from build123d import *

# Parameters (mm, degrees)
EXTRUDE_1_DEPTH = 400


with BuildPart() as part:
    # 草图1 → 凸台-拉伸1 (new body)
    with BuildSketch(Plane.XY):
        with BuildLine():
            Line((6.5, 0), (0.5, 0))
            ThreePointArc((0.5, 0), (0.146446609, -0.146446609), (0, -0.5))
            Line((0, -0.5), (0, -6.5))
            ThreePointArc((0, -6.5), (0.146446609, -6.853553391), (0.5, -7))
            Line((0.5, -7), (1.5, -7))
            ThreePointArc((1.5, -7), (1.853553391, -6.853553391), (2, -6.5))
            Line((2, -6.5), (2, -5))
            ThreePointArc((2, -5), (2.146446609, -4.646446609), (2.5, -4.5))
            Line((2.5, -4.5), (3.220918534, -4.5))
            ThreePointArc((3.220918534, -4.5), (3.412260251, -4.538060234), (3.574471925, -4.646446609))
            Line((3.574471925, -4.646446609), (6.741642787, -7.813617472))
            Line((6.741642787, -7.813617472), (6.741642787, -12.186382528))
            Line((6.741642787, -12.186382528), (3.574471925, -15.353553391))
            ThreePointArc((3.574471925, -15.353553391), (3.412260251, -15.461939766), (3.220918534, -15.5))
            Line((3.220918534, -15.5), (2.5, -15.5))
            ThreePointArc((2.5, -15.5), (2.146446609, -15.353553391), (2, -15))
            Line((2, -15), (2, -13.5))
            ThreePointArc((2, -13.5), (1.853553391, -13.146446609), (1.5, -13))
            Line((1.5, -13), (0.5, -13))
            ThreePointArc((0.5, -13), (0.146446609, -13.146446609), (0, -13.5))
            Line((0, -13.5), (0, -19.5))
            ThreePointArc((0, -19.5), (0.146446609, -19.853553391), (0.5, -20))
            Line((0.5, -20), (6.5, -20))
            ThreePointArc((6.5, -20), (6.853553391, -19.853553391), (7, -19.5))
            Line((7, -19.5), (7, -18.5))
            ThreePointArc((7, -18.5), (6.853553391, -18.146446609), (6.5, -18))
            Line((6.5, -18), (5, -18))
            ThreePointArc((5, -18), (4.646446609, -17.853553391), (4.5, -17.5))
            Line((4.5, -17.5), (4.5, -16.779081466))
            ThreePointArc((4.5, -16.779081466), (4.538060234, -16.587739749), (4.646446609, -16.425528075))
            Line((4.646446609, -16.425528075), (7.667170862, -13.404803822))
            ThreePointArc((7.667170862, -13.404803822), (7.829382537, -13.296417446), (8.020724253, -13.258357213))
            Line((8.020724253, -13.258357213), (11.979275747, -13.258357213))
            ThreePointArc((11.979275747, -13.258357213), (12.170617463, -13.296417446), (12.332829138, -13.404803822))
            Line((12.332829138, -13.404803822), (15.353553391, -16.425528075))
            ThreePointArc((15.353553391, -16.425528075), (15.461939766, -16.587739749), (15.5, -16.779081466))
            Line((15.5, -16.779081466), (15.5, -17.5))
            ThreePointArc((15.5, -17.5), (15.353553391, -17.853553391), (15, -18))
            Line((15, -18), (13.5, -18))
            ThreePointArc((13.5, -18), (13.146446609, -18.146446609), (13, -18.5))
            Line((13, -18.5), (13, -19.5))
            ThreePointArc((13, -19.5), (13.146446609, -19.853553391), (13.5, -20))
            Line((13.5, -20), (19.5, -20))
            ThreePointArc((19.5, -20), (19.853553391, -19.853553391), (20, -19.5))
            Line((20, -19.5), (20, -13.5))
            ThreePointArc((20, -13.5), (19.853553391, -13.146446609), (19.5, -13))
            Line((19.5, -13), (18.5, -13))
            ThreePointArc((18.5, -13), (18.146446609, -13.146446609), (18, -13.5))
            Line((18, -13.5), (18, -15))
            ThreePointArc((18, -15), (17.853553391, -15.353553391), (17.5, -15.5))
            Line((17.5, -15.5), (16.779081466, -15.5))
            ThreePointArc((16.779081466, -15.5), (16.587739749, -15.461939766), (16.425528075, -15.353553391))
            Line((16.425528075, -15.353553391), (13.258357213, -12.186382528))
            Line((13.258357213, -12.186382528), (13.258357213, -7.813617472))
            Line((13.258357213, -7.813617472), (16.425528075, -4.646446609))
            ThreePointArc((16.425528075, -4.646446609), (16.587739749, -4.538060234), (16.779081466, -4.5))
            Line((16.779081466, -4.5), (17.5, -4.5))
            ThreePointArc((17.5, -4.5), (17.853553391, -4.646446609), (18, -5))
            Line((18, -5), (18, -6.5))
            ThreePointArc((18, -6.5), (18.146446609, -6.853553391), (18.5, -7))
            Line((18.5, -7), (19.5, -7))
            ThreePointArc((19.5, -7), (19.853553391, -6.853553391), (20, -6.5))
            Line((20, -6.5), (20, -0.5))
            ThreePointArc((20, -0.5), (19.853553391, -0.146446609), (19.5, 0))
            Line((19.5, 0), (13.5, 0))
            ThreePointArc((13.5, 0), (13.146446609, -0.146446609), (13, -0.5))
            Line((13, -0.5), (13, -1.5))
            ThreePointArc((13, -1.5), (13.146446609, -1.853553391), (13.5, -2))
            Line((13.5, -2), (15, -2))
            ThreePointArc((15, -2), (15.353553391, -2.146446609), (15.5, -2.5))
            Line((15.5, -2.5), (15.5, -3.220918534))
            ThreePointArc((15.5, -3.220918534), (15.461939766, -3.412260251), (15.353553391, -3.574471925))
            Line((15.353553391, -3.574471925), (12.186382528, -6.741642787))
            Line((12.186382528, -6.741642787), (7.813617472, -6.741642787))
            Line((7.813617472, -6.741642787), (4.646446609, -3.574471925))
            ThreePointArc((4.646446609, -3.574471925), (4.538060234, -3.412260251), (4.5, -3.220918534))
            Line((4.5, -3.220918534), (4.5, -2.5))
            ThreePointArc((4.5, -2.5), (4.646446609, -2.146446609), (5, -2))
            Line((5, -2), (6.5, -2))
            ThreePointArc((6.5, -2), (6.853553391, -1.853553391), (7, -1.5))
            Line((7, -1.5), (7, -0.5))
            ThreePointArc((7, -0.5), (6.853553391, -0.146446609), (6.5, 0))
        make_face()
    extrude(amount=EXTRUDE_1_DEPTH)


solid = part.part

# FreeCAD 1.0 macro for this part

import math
import FreeCAD as App
import Part
import Sketcher

V = App.Vector
Q = App.Units.Quantity

doc = App.newDocument("Part")
params = doc.addObject("Spreadsheet::Sheet", "Params")
for row, (alias, value) in enumerate([
    ("sketch1_radius", "0.5 mm"),
    ("sketch1_width", "6 mm"),
    ("sketch1_width2", "1 mm"),
    ("sketch1_width3", "1.5 mm"),
    ("pad1_length", "400 mm"),
], start=1):
    params.set(f"A{row}", alias)
    params.set(f"B{row}", "=" + value)
    params.setAlias(f"B{row}", alias)

body = doc.addObject("PartDesign::Body", "Body")

sketch1 = body.newObject("Sketcher::SketchObject", "Sketch")
sketch1.AttachmentSupport = (doc.getObject("XY_Plane"), [""])
sketch1.MapMode = "FlatFace"
sketch1.addGeometry([
    Part.LineSegment(V(6.5, 0, 0), V(0.5, 0, 0)),
    Part.ArcOfCircle(Part.Circle(V(0.5, -0.5, 0), V(0, 0, 1), 0.5), math.radians(90), math.radians(180)),
    Part.LineSegment(V(0, -0.5, 0), V(0, -6.5, 0)),
    Part.ArcOfCircle(Part.Circle(V(0.5, -6.5, 0), V(0, 0, 1), 0.5), math.radians(180), math.radians(270)),
    Part.LineSegment(V(0.5, -7, 0), V(1.5, -7, 0)),
    Part.ArcOfCircle(Part.Circle(V(1.5, -6.5, 0), V(0, 0, 1), 0.5), math.radians(-90), math.radians(0)),
    Part.LineSegment(V(2, -6.5, 0), V(2, -5, 0)),
    Part.ArcOfCircle(Part.Circle(V(2.5, -5, 0), V(0, 0, 1), 0.5), math.radians(90), math.radians(180)),
    Part.LineSegment(V(2.5, -4.5, 0), V(3.22, -4.5, 0)),
    Part.ArcOfCircle(Part.Circle(V(3.22, -5, 0), V(0, 0, 1), 0.5), math.radians(45), math.radians(90)),
    Part.LineSegment(V(3.57, -4.65, 0), V(6.74, -7.81, 0)),
    Part.LineSegment(V(6.74, -7.81, 0), V(6.74, -12.19, 0)),
    Part.LineSegment(V(6.74, -12.19, 0), V(3.57, -15.35, 0)),
    Part.ArcOfCircle(Part.Circle(V(3.22, -15, 0), V(0, 0, 1), 0.5), math.radians(-90), math.radians(-45)),
    Part.LineSegment(V(3.22, -15.5, 0), V(2.5, -15.5, 0)),
    Part.ArcOfCircle(Part.Circle(V(2.5, -15, 0), V(0, 0, 1), 0.5), math.radians(180), math.radians(270)),
    Part.LineSegment(V(2, -15, 0), V(2, -13.5, 0)),
    Part.ArcOfCircle(Part.Circle(V(1.5, -13.5, 0), V(0, 0, 1), 0.5), math.radians(0), math.radians(90)),
    Part.LineSegment(V(1.5, -13, 0), V(0.5, -13, 0)),
    Part.ArcOfCircle(Part.Circle(V(0.5, -13.5, 0), V(0, 0, 1), 0.5), math.radians(90), math.radians(180)),
    Part.LineSegment(V(0, -13.5, 0), V(0, -19.5, 0)),
    Part.ArcOfCircle(Part.Circle(V(0.5, -19.5, 0), V(0, 0, 1), 0.5), math.radians(180), math.radians(270)),
    Part.LineSegment(V(0.5, -20, 0), V(6.5, -20, 0)),
    Part.ArcOfCircle(Part.Circle(V(6.5, -19.5, 0), V(0, 0, 1), 0.5), math.radians(-90), math.radians(0)),
    Part.LineSegment(V(7, -19.5, 0), V(7, -18.5, 0)),
    Part.ArcOfCircle(Part.Circle(V(6.5, -18.5, 0), V(0, 0, 1), 0.5), math.radians(0), math.radians(90)),
    Part.LineSegment(V(6.5, -18, 0), V(5, -18, 0)),
    Part.ArcOfCircle(Part.Circle(V(5, -17.5, 0), V(0, 0, 1), 0.5), math.radians(180), math.radians(270)),
    Part.LineSegment(V(4.5, -17.5, 0), V(4.5, -16.78, 0)),
    Part.ArcOfCircle(Part.Circle(V(5, -16.78, 0), V(0, 0, 1), 0.5), math.radians(135), math.radians(180)),
    Part.LineSegment(V(4.65, -16.43, 0), V(7.67, -13.4, 0)),
    Part.ArcOfCircle(Part.Circle(V(8.02, -13.76, 0), V(0, 0, 1), 0.5), math.radians(90), math.radians(135)),
    Part.LineSegment(V(8.02, -13.26, 0), V(11.98, -13.26, 0)),
    Part.ArcOfCircle(Part.Circle(V(11.98, -13.76, 0), V(0, 0, 1), 0.5), math.radians(45), math.radians(90)),
    Part.LineSegment(V(12.33, -13.4, 0), V(15.35, -16.43, 0)),
    Part.ArcOfCircle(Part.Circle(V(15, -16.78, 0), V(0, 0, 1), 0.5), math.radians(0), math.radians(45)),
    Part.LineSegment(V(15.5, -16.78, 0), V(15.5, -17.5, 0)),
    Part.ArcOfCircle(Part.Circle(V(15, -17.5, 0), V(0, 0, 1), 0.5), math.radians(-90), math.radians(0)),
    Part.LineSegment(V(15, -18, 0), V(13.5, -18, 0)),
    Part.ArcOfCircle(Part.Circle(V(13.5, -18.5, 0), V(0, 0, 1), 0.5), math.radians(90), math.radians(180)),
    Part.LineSegment(V(13, -18.5, 0), V(13, -19.5, 0)),
    Part.ArcOfCircle(Part.Circle(V(13.5, -19.5, 0), V(0, 0, 1), 0.5), math.radians(180), math.radians(270)),
    Part.LineSegment(V(13.5, -20, 0), V(19.5, -20, 0)),
    Part.ArcOfCircle(Part.Circle(V(19.5, -19.5, 0), V(0, 0, 1), 0.5), math.radians(-90), math.radians(0)),
    Part.LineSegment(V(20, -19.5, 0), V(20, -13.5, 0)),
    Part.ArcOfCircle(Part.Circle(V(19.5, -13.5, 0), V(0, 0, 1), 0.5), math.radians(0), math.radians(90)),
    Part.LineSegment(V(19.5, -13, 0), V(18.5, -13, 0)),
    Part.ArcOfCircle(Part.Circle(V(18.5, -13.5, 0), V(0, 0, 1), 0.5), math.radians(90), math.radians(180)),
    Part.LineSegment(V(18, -13.5, 0), V(18, -15, 0)),
    Part.ArcOfCircle(Part.Circle(V(17.5, -15, 0), V(0, 0, 1), 0.5), math.radians(-90), math.radians(0)),
    Part.LineSegment(V(17.5, -15.5, 0), V(16.78, -15.5, 0)),
    Part.ArcOfCircle(Part.Circle(V(16.78, -15, 0), V(0, 0, 1), 0.5), math.radians(-135), math.radians(-90)),
    Part.LineSegment(V(16.43, -15.35, 0), V(13.26, -12.19, 0)),
    Part.LineSegment(V(13.26, -12.19, 0), V(13.26, -7.81, 0)),
    Part.LineSegment(V(13.26, -7.81, 0), V(16.43, -4.65, 0)),
    Part.ArcOfCircle(Part.Circle(V(16.78, -5, 0), V(0, 0, 1), 0.5), math.radians(90), math.radians(135)),
    Part.LineSegment(V(16.78, -4.5, 0), V(17.5, -4.5, 0)),
    Part.ArcOfCircle(Part.Circle(V(17.5, -5, 0), V(0, 0, 1), 0.5), math.radians(0), math.radians(90)),
    Part.LineSegment(V(18, -5, 0), V(18, -6.5, 0)),
    Part.ArcOfCircle(Part.Circle(V(18.5, -6.5, 0), V(0, 0, 1), 0.5), math.radians(180), math.radians(270)),
    Part.LineSegment(V(18.5, -7, 0), V(19.5, -7, 0)),
    Part.ArcOfCircle(Part.Circle(V(19.5, -6.5, 0), V(0, 0, 1), 0.5), math.radians(-90), math.radians(0)),
    Part.LineSegment(V(20, -6.5, 0), V(20, -0.5, 0)),
    Part.ArcOfCircle(Part.Circle(V(19.5, -0.5, 0), V(0, 0, 1), 0.5), math.radians(0), math.radians(90)),
    Part.LineSegment(V(19.5, 0, 0), V(13.5, 0, 0)),
    Part.ArcOfCircle(Part.Circle(V(13.5, -0.5, 0), V(0, 0, 1), 0.5), math.radians(90), math.radians(180)),
    Part.LineSegment(V(13, -0.5, 0), V(13, -1.5, 0)),
    Part.ArcOfCircle(Part.Circle(V(13.5, -1.5, 0), V(0, 0, 1), 0.5), math.radians(180), math.radians(270)),
    Part.LineSegment(V(13.5, -2, 0), V(15, -2, 0)),
    Part.ArcOfCircle(Part.Circle(V(15, -2.5, 0), V(0, 0, 1), 0.5), math.radians(0), math.radians(90)),
    Part.LineSegment(V(15.5, -2.5, 0), V(15.5, -3.22, 0)),
    Part.ArcOfCircle(Part.Circle(V(15, -3.22, 0), V(0, 0, 1), 0.5), math.radians(-45), math.radians(0)),
    Part.LineSegment(V(15.35, -3.57, 0), V(12.19, -6.74, 0)),
    Part.LineSegment(V(12.19, -6.74, 0), V(7.81, -6.74, 0)),
    Part.LineSegment(V(7.81, -6.74, 0), V(4.65, -3.57, 0)),
    Part.ArcOfCircle(Part.Circle(V(5, -3.22, 0), V(0, 0, 1), 0.5), math.radians(180), math.radians(225)),
    Part.LineSegment(V(4.5, -3.22, 0), V(4.5, -2.5, 0)),
    Part.ArcOfCircle(Part.Circle(V(5, -2.5, 0), V(0, 0, 1), 0.5), math.radians(90), math.radians(180)),
    Part.LineSegment(V(5, -2, 0), V(6.5, -2, 0)),
    Part.ArcOfCircle(Part.Circle(V(6.5, -1.5, 0), V(0, 0, 1), 0.5), math.radians(-90), math.radians(0)),
    Part.LineSegment(V(7, -1.5, 0), V(7, -0.5, 0)),
    Part.ArcOfCircle(Part.Circle(V(6.5, -0.5, 0), V(0, 0, 1), 0.5), math.radians(0), math.radians(90)),
], False)
sketch1.addConstraint([
    Sketcher.Constraint("Tangent", 0, 2, 1, 1),
    Sketcher.Constraint("Tangent", 1, 2, 2, 1),
    Sketcher.Constraint("Tangent", 2, 2, 3, 1),
    Sketcher.Constraint("Tangent", 3, 2, 4, 1),
    Sketcher.Constraint("Tangent", 4, 2, 5, 1),
    Sketcher.Constraint("Tangent", 5, 2, 6, 1),
    Sketcher.Constraint("Tangent", 6, 2, 7, 2),
    Sketcher.Constraint("Tangent", 7, 1, 8, 1),
    Sketcher.Constraint("Tangent", 8, 2, 9, 2),
    Sketcher.Constraint("Tangent", 9, 1, 10, 1),
    Sketcher.Constraint("Coincident", 10, 2, 11, 1),
    Sketcher.Constraint("Coincident", 11, 2, 12, 1),
    Sketcher.Constraint("Tangent", 12, 2, 13, 2),
    Sketcher.Constraint("Tangent", 13, 1, 14, 1),
    Sketcher.Constraint("Tangent", 14, 2, 15, 2),
    Sketcher.Constraint("Tangent", 15, 1, 16, 1),
    Sketcher.Constraint("Tangent", 16, 2, 17, 1),
    Sketcher.Constraint("Tangent", 17, 2, 18, 1),
    Sketcher.Constraint("Tangent", 18, 2, 19, 1),
    Sketcher.Constraint("Tangent", 19, 2, 20, 1),
    Sketcher.Constraint("Tangent", 20, 2, 21, 1),
    Sketcher.Constraint("Tangent", 21, 2, 22, 1),
    Sketcher.Constraint("Tangent", 22, 2, 23, 1),
    Sketcher.Constraint("Tangent", 23, 2, 24, 1),
    Sketcher.Constraint("Tangent", 24, 2, 25, 1),
    Sketcher.Constraint("Tangent", 25, 2, 26, 1),
    Sketcher.Constraint("Tangent", 26, 2, 27, 2),
    Sketcher.Constraint("Tangent", 27, 1, 28, 1),
    Sketcher.Constraint("Tangent", 28, 2, 29, 2),
    Sketcher.Constraint("Tangent", 29, 1, 30, 1),
    Sketcher.Constraint("Tangent", 30, 2, 31, 2),
    Sketcher.Constraint("Tangent", 31, 1, 32, 1),
    Sketcher.Constraint("Tangent", 32, 2, 33, 2),
    Sketcher.Constraint("Tangent", 33, 1, 34, 1),
    Sketcher.Constraint("Tangent", 34, 2, 35, 2),
    Sketcher.Constraint("Tangent", 35, 1, 36, 1),
    Sketcher.Constraint("Tangent", 36, 2, 37, 2),
    Sketcher.Constraint("Tangent", 37, 1, 38, 1),
    Sketcher.Constraint("Tangent", 38, 2, 39, 1),
    Sketcher.Constraint("Tangent", 39, 2, 40, 1),
    Sketcher.Constraint("Tangent", 40, 2, 41, 1),
    Sketcher.Constraint("Tangent", 41, 2, 42, 1),
    Sketcher.Constraint("Tangent", 42, 2, 43, 1),
    Sketcher.Constraint("Tangent", 43, 2, 44, 1),
    Sketcher.Constraint("Tangent", 44, 2, 45, 1),
    Sketcher.Constraint("Tangent", 45, 2, 46, 1),
    Sketcher.Constraint("Tangent", 46, 2, 47, 1),
    Sketcher.Constraint("Tangent", 47, 2, 48, 1),
    Sketcher.Constraint("Tangent", 48, 2, 49, 2),
    Sketcher.Constraint("Tangent", 49, 1, 50, 1),
    Sketcher.Constraint("Tangent", 50, 2, 51, 2),
    Sketcher.Constraint("Tangent", 51, 1, 52, 1),
    Sketcher.Constraint("Coincident", 52, 2, 53, 1),
    Sketcher.Constraint("Coincident", 53, 2, 54, 1),
    Sketcher.Constraint("Tangent", 54, 2, 55, 2),
    Sketcher.Constraint("Tangent", 55, 1, 56, 1),
    Sketcher.Constraint("Tangent", 56, 2, 57, 2),
    Sketcher.Constraint("Tangent", 57, 1, 58, 1),
    Sketcher.Constraint("Tangent", 58, 2, 59, 1),
    Sketcher.Constraint("Tangent", 59, 2, 60, 1),
    Sketcher.Constraint("Tangent", 60, 2, 61, 1),
    Sketcher.Constraint("Tangent", 61, 2, 62, 1),
    Sketcher.Constraint("Tangent", 62, 2, 63, 1),
    Sketcher.Constraint("Tangent", 63, 2, 64, 1),
    Sketcher.Constraint("Tangent", 64, 2, 65, 1),
    Sketcher.Constraint("Tangent", 65, 2, 66, 1),
    Sketcher.Constraint("Tangent", 66, 2, 67, 1),
    Sketcher.Constraint("Tangent", 67, 2, 68, 1),
    Sketcher.Constraint("Tangent", 68, 2, 69, 2),
    Sketcher.Constraint("Tangent", 69, 1, 70, 1),
    Sketcher.Constraint("Tangent", 70, 2, 71, 2),
    Sketcher.Constraint("Tangent", 71, 1, 72, 1),
    Sketcher.Constraint("Coincident", 72, 2, 73, 1),
    Sketcher.Constraint("Coincident", 73, 2, 74, 1),
    Sketcher.Constraint("Tangent", 74, 2, 75, 2),
    Sketcher.Constraint("Tangent", 75, 1, 76, 1),
    Sketcher.Constraint("Tangent", 76, 2, 77, 2),
    Sketcher.Constraint("Tangent", 77, 1, 78, 1),
    Sketcher.Constraint("Tangent", 78, 2, 79, 1),
    Sketcher.Constraint("Tangent", 79, 2, 80, 1),
    Sketcher.Constraint("Tangent", 80, 2, 81, 1),
    Sketcher.Constraint("Tangent", 81, 2, 0, 1),
    Sketcher.Constraint("Horizontal", 0),
    Sketcher.Constraint("Vertical", 2),
    Sketcher.Constraint("Horizontal", 4),
    Sketcher.Constraint("Vertical", 6),
    Sketcher.Constraint("Horizontal", 8),
    Sketcher.Constraint("Vertical", 11),
    Sketcher.Constraint("Horizontal", 14),
    Sketcher.Constraint("Vertical", 16),
    Sketcher.Constraint("Horizontal", 18),
    Sketcher.Constraint("Vertical", 20),
    Sketcher.Constraint("Horizontal", 22),
    Sketcher.Constraint("Vertical", 24),
    Sketcher.Constraint("Horizontal", 26),
    Sketcher.Constraint("Vertical", 28),
    Sketcher.Constraint("Horizontal", 32),
    Sketcher.Constraint("Vertical", 36),
    Sketcher.Constraint("Horizontal", 38),
    Sketcher.Constraint("Vertical", 40),
    Sketcher.Constraint("Horizontal", 42),
    Sketcher.Constraint("Vertical", 44),
    Sketcher.Constraint("Horizontal", 46),
    Sketcher.Constraint("Vertical", 48),
    Sketcher.Constraint("Horizontal", 50),
    Sketcher.Constraint("Vertical", 53),
    Sketcher.Constraint("Horizontal", 56),
    Sketcher.Constraint("Vertical", 58),
    Sketcher.Constraint("Horizontal", 60),
    Sketcher.Constraint("Vertical", 62),
    Sketcher.Constraint("Horizontal", 64),
    Sketcher.Constraint("Vertical", 66),
    Sketcher.Constraint("Horizontal", 68),
    Sketcher.Constraint("Vertical", 70),
    Sketcher.Constraint("Horizontal", 73),
    Sketcher.Constraint("Vertical", 76),
    Sketcher.Constraint("Horizontal", 78),
    Sketcher.Constraint("Vertical", 80),
    Sketcher.Constraint("Equal", 1, 3),
    Sketcher.Constraint("Equal", 3, 5),
    Sketcher.Constraint("Equal", 5, 7),
    Sketcher.Constraint("Equal", 7, 9),
    Sketcher.Constraint("Equal", 9, 13),
    Sketcher.Constraint("Equal", 13, 15),
    Sketcher.Constraint("Equal", 15, 17),
    Sketcher.Constraint("Equal", 17, 19),
    Sketcher.Constraint("Equal", 19, 21),
    Sketcher.Constraint("Equal", 21, 23),
    Sketcher.Constraint("Equal", 23, 25),
    Sketcher.Constraint("Equal", 25, 27),
    Sketcher.Constraint("Equal", 27, 29),
    Sketcher.Constraint("Equal", 29, 31),
    Sketcher.Constraint("Equal", 31, 33),
    Sketcher.Constraint("Equal", 33, 35),
    Sketcher.Constraint("Equal", 35, 37),
    Sketcher.Constraint("Equal", 37, 39),
    Sketcher.Constraint("Equal", 39, 41),
    Sketcher.Constraint("Equal", 41, 43),
    Sketcher.Constraint("Equal", 43, 45),
    Sketcher.Constraint("Equal", 45, 47),
    Sketcher.Constraint("Equal", 47, 49),
    Sketcher.Constraint("Equal", 49, 51),
    Sketcher.Constraint("Equal", 51, 55),
    Sketcher.Constraint("Equal", 55, 57),
    Sketcher.Constraint("Equal", 57, 59),
    Sketcher.Constraint("Equal", 59, 61),
    Sketcher.Constraint("Equal", 61, 63),
    Sketcher.Constraint("Equal", 63, 65),
    Sketcher.Constraint("Equal", 65, 67),
    Sketcher.Constraint("Equal", 67, 69),
    Sketcher.Constraint("Equal", 69, 71),
    Sketcher.Constraint("Equal", 71, 75),
    Sketcher.Constraint("Equal", 75, 77),
    Sketcher.Constraint("Equal", 77, 79),
    Sketcher.Constraint("Equal", 79, 81),
    Sketcher.Constraint("PointOnObject", 0, 2, -1),
    Sketcher.Constraint("PointOnObject", 1, 2, -2),
    Sketcher.Constraint("PointOnObject", 19, 2, -2),
    Sketcher.Constraint("PointOnObject", 63, 2, -1),
    Sketcher.Constraint("Perpendicular", 10, 12),
    Sketcher.Constraint("Parallel", 12, 30),
    Sketcher.Constraint("Perpendicular", 30, 34),
    Sketcher.Constraint("Parallel", 34, 52),
    Sketcher.Constraint("Perpendicular", 52, 54),
    Sketcher.Constraint("Parallel", 54, 72),
    Sketcher.Constraint("Perpendicular", 72, 74),
    Sketcher.Constraint("Horizontal", 29, 3, 35, 3),
    Sketcher.Constraint("Horizontal", 27, 3, 37, 3),
    Sketcher.Constraint("Horizontal", 23, 3, 41, 3),
    Sketcher.Constraint("Horizontal", 19, 3, 45, 3),
    Sketcher.Constraint("Horizontal", 15, 3, 49, 3),
    Sketcher.Constraint("Horizontal", 9, 3, 55, 3),
    Sketcher.Constraint("Horizontal", 5, 3, 59, 3),
    Sketcher.Constraint("Horizontal", 71, 3, 75, 3),
    Sketcher.Constraint("Horizontal", 69, 3, 77, 3),
    Sketcher.Constraint("Horizontal", 30, 2, 33, 1),
    Sketcher.Constraint("Horizontal", 11, 2, 52, 2),
    Sketcher.Constraint("Horizontal", 10, 2, 53, 2),
    Sketcher.Constraint("Vertical", 9, 3, 13, 3),
    Sketcher.Constraint("Vertical", 7, 3, 15, 3),
    Sketcher.Constraint("Vertical", 49, 3, 57, 3),
    Sketcher.Constraint("Vertical", 45, 3, 61, 3),
    Sketcher.Constraint("Vertical", 41, 3, 65, 3),
    Sketcher.Constraint("Vertical", 37, 3, 69, 3),
    Sketcher.Constraint("Vertical", 29, 3, 75, 3),
    Sketcher.Constraint("Vertical", 25, 3, 79, 3),
    Sketcher.Constraint("Equal", 26, 38),
    Sketcher.Constraint("Equal", 22, 42),
    Sketcher.Constraint("Equal", 18, 46),
    Sketcher.Constraint("Equal", 14, 50),
    Sketcher.Constraint("Equal", 64, 2),
    Sketcher.Constraint("Equal", 78, 6),
    Sketcher.Constraint("Equal", 73, 11),
    Sketcher.Constraint("Equal", 6, 16),
    Sketcher.Constraint("Equal", 2, 20),
    Sketcher.Constraint("Equal", 60, 24),
    Sketcher.Constraint("Equal", 56, 28),
    Sketcher.Constraint("Equal", 40, 66),
    Sketcher.Constraint("Equal", 36, 70),
    Sketcher.Constraint("Equal", 54, 72),
    Sketcher.Constraint("Radius", 1, Q("0.5 mm")),
    Sketcher.Constraint("DistanceX", 0, 2, 0, 1, Q("6 mm")),
    Sketcher.Constraint("DistanceX", 4, 1, 4, 2, Q("1 mm")),
    Sketcher.Constraint("DistanceX", 26, 2, 26, 1, Q("1.5 mm")),
    Sketcher.Constraint("DistanceY", 13, 3, -1, 1, Q("15 mm")),
    Sketcher.Constraint("DistanceX", 8, 1, 8, 2, Q("0.720919 mm")),
    Sketcher.Constraint("DistanceX", 32, 1, 32, 2, Q("3.958551 mm")),
    Sketcher.Constraint("DistanceX", 73, 2, 73, 1, Q("4.372765 mm")),
])
sketch1.setExpression("Constraints[200]", "Params.sketch1_radius")
sketch1.setExpression("Constraints[201]", "Params.sketch1_width")
sketch1.setExpression("Constraints[202]", "Params.sketch1_width2")
sketch1.setExpression("Constraints[203]", "Params.sketch1_width3")
pad1 = body.newObject("PartDesign::Pad", "Pad")
pad1.Profile = sketch1
pad1.setExpression("Length", "Params.pad1_length")

doc.recompute()
